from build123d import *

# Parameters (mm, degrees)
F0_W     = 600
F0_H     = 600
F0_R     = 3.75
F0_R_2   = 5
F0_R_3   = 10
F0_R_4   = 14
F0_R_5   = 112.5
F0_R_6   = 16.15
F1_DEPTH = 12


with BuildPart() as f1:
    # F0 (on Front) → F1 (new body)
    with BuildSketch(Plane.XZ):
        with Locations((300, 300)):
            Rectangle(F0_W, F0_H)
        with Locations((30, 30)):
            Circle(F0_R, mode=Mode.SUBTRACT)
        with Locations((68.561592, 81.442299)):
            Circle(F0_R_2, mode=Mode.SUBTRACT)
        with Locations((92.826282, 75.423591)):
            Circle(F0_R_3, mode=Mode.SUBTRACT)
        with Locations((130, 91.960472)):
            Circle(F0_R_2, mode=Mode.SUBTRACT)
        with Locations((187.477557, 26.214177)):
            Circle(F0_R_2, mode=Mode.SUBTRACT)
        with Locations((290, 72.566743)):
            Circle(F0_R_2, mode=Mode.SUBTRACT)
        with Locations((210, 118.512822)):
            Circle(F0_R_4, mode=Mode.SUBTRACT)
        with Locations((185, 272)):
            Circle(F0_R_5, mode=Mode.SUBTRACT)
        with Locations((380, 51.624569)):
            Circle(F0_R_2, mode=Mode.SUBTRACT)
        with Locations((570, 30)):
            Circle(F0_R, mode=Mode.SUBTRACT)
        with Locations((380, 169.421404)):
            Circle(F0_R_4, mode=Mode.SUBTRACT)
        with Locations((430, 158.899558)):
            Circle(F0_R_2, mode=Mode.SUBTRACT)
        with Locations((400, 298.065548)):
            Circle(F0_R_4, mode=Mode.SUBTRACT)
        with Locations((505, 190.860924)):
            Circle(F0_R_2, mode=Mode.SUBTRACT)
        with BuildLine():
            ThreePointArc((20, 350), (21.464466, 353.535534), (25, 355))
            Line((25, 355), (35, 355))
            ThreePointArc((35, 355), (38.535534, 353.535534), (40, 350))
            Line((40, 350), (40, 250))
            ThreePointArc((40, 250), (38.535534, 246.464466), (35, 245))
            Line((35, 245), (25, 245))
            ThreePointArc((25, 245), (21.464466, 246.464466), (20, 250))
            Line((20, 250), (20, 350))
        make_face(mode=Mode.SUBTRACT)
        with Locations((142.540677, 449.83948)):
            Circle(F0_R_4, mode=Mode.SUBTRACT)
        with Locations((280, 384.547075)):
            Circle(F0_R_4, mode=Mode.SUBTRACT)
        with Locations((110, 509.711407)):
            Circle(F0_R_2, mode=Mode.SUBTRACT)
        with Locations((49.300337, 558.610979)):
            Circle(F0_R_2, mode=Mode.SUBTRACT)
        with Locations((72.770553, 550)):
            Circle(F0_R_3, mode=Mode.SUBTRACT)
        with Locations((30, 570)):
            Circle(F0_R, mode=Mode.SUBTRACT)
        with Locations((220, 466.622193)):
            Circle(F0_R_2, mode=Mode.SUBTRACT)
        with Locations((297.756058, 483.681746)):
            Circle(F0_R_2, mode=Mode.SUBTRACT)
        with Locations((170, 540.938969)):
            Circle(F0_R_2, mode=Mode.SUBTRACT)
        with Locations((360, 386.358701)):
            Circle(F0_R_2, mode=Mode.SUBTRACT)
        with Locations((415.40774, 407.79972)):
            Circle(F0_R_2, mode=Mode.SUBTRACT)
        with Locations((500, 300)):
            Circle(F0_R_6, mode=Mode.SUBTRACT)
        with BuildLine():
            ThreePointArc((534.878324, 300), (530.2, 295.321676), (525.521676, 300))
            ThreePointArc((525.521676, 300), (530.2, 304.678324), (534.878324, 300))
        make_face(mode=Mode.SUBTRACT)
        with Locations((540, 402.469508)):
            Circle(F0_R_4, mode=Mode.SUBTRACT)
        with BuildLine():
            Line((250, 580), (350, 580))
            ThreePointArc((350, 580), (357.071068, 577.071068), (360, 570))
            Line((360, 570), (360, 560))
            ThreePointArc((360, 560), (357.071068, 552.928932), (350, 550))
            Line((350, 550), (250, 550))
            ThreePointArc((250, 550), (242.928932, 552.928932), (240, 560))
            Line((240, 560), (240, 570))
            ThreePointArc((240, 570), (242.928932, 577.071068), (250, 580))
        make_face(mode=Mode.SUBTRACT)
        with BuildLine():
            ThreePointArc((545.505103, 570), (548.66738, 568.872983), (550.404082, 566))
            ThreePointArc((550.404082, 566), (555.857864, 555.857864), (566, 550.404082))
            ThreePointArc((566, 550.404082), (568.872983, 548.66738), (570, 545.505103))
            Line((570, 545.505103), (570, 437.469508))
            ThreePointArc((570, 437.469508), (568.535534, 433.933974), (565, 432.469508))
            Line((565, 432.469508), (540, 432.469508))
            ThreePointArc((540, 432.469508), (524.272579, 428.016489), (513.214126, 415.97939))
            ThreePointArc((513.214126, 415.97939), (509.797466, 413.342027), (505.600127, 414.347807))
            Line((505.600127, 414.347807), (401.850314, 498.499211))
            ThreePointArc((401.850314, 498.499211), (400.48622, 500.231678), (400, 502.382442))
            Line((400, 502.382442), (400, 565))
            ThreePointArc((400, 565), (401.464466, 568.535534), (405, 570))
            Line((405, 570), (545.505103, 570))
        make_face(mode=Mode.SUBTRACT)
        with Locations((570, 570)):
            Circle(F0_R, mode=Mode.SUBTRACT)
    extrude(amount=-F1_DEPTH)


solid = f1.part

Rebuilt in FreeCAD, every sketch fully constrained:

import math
import FreeCAD as App
import Part
import Sketcher

V = App.Vector


def add_polygon(sketch, points):
    """Adds a closed chain of lines whose ends are joined by coincident constraints."""
    first, n = sketch.GeometryCount, len(points)
    for a, b in zip(points, points[1:] + points[:1]):
        sketch.addGeometry(Part.LineSegment(App.Vector(*a, 0), App.Vector(*b, 0)), False)
    for i in range(n):
        sketch.addConstraint(Sketcher.Constraint("Coincident", first + i, 2, first + (i + 1) % n, 1))

doc = App.newDocument("Part")
body = doc.addObject("PartDesign::Body", "Body")

# Sketch on XZ plane
sketch1 = body.newObject("Sketcher::SketchObject", "Sketch")
sketch1.AttachmentSupport = (doc.getObject("XZ_Plane"), [""])
sketch1.MapMode = "FlatFace"
add_polygon(sketch1, [(0, 600), (0, 0), (600, 0), (600, 600)])  # lines 0-3
sketch1.addGeometry(Part.Circle(V(30, 30, 0), V(0, 0, 1), 3.75), False)  # 4
sketch1.addGeometry(Part.Circle(V(68.561592, 81.442299, 0), V(0, 0, 1), 5), False)  # 5
sketch1.addGeometry(Part.Circle(V(92.826282, 75.423591, 0), V(0, 0, 1), 10), False)  # 6
sketch1.addGeometry(Part.Circle(V(130, 91.960472, 0), V(0, 0, 1), 5), False)  # 7
sketch1.addGeometry(Part.Circle(V(187.477557, 26.214177, 0), V(0, 0, 1), 5), False)  # 8
sketch1.addGeometry(Part.Circle(V(290, 72.566743, 0), V(0, 0, 1), 5), False)  # 9
sketch1.addGeometry(Part.Circle(V(210, 118.512822, 0), V(0, 0, 1), 14), False)  # 10
sketch1.addGeometry(Part.LineSegment(V(20, 250, 0), V(20, 350, 0)), False)  # 11
sketch1.addGeometry(Part.ArcOfCircle(Part.Circle(V(25, 350, 0), V(0, 0, 1), 5), math.radians(89.999996), math.radians(180.000004)), False)  # 12
sketch1.addGeometry(Part.LineSegment(V(25, 355, 0), V(35, 355, 0)), False)  # 13
sketch1.addGeometry(Part.ArcOfCircle(Part.Circle(V(35, 350, 0), V(0, 0, 1), 5), math.radians(-0.000004), math.radians(90.000004)), False)  # 14
sketch1.addGeometry(Part.LineSegment(V(40, 350, 0), V(40, 250, 0)), False)  # 15
sketch1.addGeometry(Part.ArcOfCircle(Part.Circle(V(35, 250, 0), V(0, 0, 1), 5), math.radians(-90.000004), math.radians(0.000004)), False)  # 16
sketch1.addGeometry(Part.LineSegment(V(35, 245, 0), V(25, 245, 0)), False)  # 17
sketch1.addGeometry(Part.ArcOfCircle(Part.Circle(V(25, 250, 0), V(0, 0, 1), 5), math.radians(179.999996), math.radians(270.000004)), False)  # 18
sketch1.addGeometry(Part.Circle(V(185, 272, 0), V(0, 0, 1), 112.5), False)  # 19
sketch1.addGeometry(Part.Circle(V(380, 51.624569, 0), V(0, 0, 1), 5), False)  # 20
sketch1.addGeometry(Part.Circle(V(430, 158.899558, 0), V(0, 0, 1), 5), False)  # 21
sketch1.addGeometry(Part.Circle(V(570, 30, 0), V(0, 0, 1), 3.75), False)  # 22
sketch1.addGeometry(Part.Circle(V(380, 169.421404, 0), V(0, 0, 1), 14), False)  # 23
sketch1.addGeometry(Part.Circle(V(400, 298.065548, 0), V(0, 0, 1), 14), False)  # 24
sketch1.addGeometry(Part.Circle(V(505, 190.860924, 0), V(0, 0, 1), 5), False)  # 25
sketch1.addGeometry(Part.Circle(V(500, 300, 0), V(0, 0, 1), 16.15), False)  # 26
sketch1.addGeometry(Part.Circle(V(530.2, 300, 0), V(0, 0, 1), 4.678324), False)  # 27
sketch1.addGeometry(Part.Circle(V(280, 384.547075, 0), V(0, 0, 1), 14), False)  # 28
sketch1.addGeometry(Part.Circle(V(142.540677, 449.83948, 0), V(0, 0, 1), 14), False)  # 29
sketch1.addGeometry(Part.Circle(V(110, 509.711407, 0), V(0, 0, 1), 5), False)  # 30
sketch1.addGeometry(Part.Circle(V(49.300337, 558.610979, 0), V(0, 0, 1), 5), False)  # 31
sketch1.addGeometry(Part.Circle(V(30, 570, 0), V(0, 0, 1), 3.75), False)  # 32
sketch1.addGeometry(Part.Circle(V(72.770553, 550, 0), V(0, 0, 1), 10), False)  # 33
sketch1.addGeometry(Part.Circle(V(220, 466.622193, 0), V(0, 0, 1), 5), False)  # 34
sketch1.addGeometry(Part.Circle(V(170, 540.938969, 0), V(0, 0, 1), 5), False)  # 35
sketch1.addGeometry(Part.Circle(V(360, 386.358701, 0), V(0, 0, 1), 5), False)  # 36
sketch1.addGeometry(Part.Circle(V(415.40774, 407.79972, 0), V(0, 0, 1), 5), False)  # 37
sketch1.addGeometry(Part.Circle(V(540, 402.469508, 0), V(0, 0, 1), 14), False)  # 38
sketch1.addGeometry(Part.Circle(V(297.756058, 483.681746, 0), V(0, 0, 1), 5), False)  # 39
sketch1.addGeometry(Part.ArcOfCircle(Part.Circle(V(249.999999, 570.000001, 0), V(0, 0, 1), 9.999999), math.radians(89.999996), math.radians(180.000004)), False)  # 40
sketch1.addGeometry(Part.LineSegment(V(250, 580, 0), V(350, 580, 0)), False)  # 41
sketch1.addGeometry(Part.ArcOfCircle(Part.Circle(V(350.000001, 570.000001, 0), V(0, 0, 1), 9.999999), math.radians(-0.000004), math.radians(90.000004)), False)  # 42
sketch1.addGeometry(Part.LineSegment(V(360, 570, 0), V(360, 560, 0)), False)  # 43
sketch1.addGeometry(Part.ArcOfCircle(Part.Circle(V(350.000001, 559.999999, 0), V(0, 0, 1), 9.999999), math.radians(-90.000004), math.radians(0.000004)), False)  # 44
sketch1.addGeometry(Part.LineSegment(V(350, 550, 0), V(250, 550, 0)), False)  # 45
sketch1.addGeometry(Part.ArcOfCircle(Part.Circle(V(249.999999, 559.999999, 0), V(0, 0, 1), 9.999999), math.radians(179.999996), math.radians(270.000004)), False)  # 46
sketch1.addGeometry(Part.LineSegment(V(240, 560, 0), V(240, 570, 0)), False)  # 47
sketch1.addGeometry(Part.LineSegment(V(405, 570, 0), V(545.505103, 570, 0)), False)  # 48
sketch1.addGeometry(Part.ArcOfCircle(Part.Circle(V(545.505101, 564.999999, 0), V(0, 0, 1), 5.000001), math.radians(11.536971), math.radians(89.999982)), False)  # 49
sketch1.addGeometry(Part.ArcOfCircle(Part.Circle(V(569.999998, 569.999998, 0), V(0, 0, 1), 19.999998), math.radians(-168.463046), math.radians(-101.536954)), False)  # 50
sketch1.addGeometry(Part.ArcOfCircle(Part.Circle(V(564.999999, 545.505101, 0), V(0, 0, 1), 5.000001), math.radians(0.000018), math.radians(78.463029)), False)  # 51
sketch1.addGeometry(Part.LineSegment(V(570, 545.505103, 0), V(570, 437.469508, 0)), False)  # 52
sketch1.addGeometry(Part.ArcOfCircle(Part.Circle(V(565, 437.469508, 0), V(0, 0, 1), 5), math.radians(-90.000004), math.radians(0.000004)), False)  # 53
sketch1.addGeometry(Part.LineSegment(V(565, 432.469508, 0), V(540, 432.469508, 0)), False)  # 54
sketch1.addGeometry(Part.ArcOfCircle(Part.Circle(V(539.999999, 402.469511, 0), V(0, 0, 1), 29.999997), math.radians(89.999998), math.radians(153.235184)), False)  # 55
sketch1.addGeometry(Part.ArcOfCircle(Part.Circle(V(508.749813, 418.231039, 0), V(0, 0, 1), 5.000001), math.radians(-129.045483), math.radians(-26.764833)), False)  # 56
sketch1.addGeometry(Part.LineSegment(V(505.600127, 414.347807, 0), V(401.850314, 498.499211, 0)), False)  # 57
sketch1.addGeometry(Part.ArcOfCircle(Part.Circle(V(405.000007, 502.382444, 0), V(0, 0, 1), 5.000007), math.radians(-179.999972), math.radians(-129.045525)), False)  # 58
sketch1.addGeometry(Part.LineSegment(V(400, 502.382442, 0), V(400, 565, 0)), False)  # 59
sketch1.addGeometry(Part.ArcOfCircle(Part.Circle(V(405, 565, 0), V(0, 0, 1), 5), math.radians(89.999996), math.radians(180.000004)), False)  # 60
sketch1.addGeometry(Part.Circle(V(570, 570, 0), V(0, 0, 1), 3.75), False)  # 61
sketch1.addConstraint([
    Sketcher.Constraint("Tangent", 11, 2, 12, 2),
    Sketcher.Constraint("Tangent", 12, 1, 13, 1),
    Sketcher.Constraint("Tangent", 13, 2, 14, 2),
    Sketcher.Constraint("Tangent", 14, 1, 15, 1),
    Sketcher.Constraint("Tangent", 15, 2, 16, 2),
    Sketcher.Constraint("Tangent", 16, 1, 17, 1),
    Sketcher.Constraint("Tangent", 17, 2, 18, 2),
    Sketcher.Constraint("Tangent", 18, 1, 11, 1),
    Sketcher.Constraint("Tangent", 40, 1, 41, 1),
    Sketcher.Constraint("Tangent", 41, 2, 42, 2),
    Sketcher.Constraint("Tangent", 42, 1, 43, 1),
    Sketcher.Constraint("Tangent", 43, 2, 44, 2),
    Sketcher.Constraint("Tangent", 44, 1, 45, 1),
    Sketcher.Constraint("Tangent", 45, 2, 46, 2),
    Sketcher.Constraint("Tangent", 46, 1, 47, 1),
    Sketcher.Constraint("Tangent", 47, 2, 40, 2),
    Sketcher.Constraint("Tangent", 48, 2, 49, 2),
    Sketcher.Constraint("Tangent", 49, 1, 50, 1),
    Sketcher.Constraint("Tangent", 50, 2, 51, 2),
    Sketcher.Constraint("Tangent", 51, 1, 52, 1),
    Sketcher.Constraint("Tangent", 52, 2, 53, 2),
    Sketcher.Constraint("Tangent", 53, 1, 54, 1),
    Sketcher.Constraint("Tangent", 54, 2, 55, 1),
    Sketcher.Constraint("Tangent", 55, 2, 56, 2),
    Sketcher.Constraint("Tangent", 56, 1, 57, 1),
    Sketcher.Constraint("Tangent", 57, 2, 58, 2),
    Sketcher.Constraint("Tangent", 58, 1, 59, 1),
    Sketcher.Constraint("Tangent", 59, 2, 60, 2),
    Sketcher.Constraint("Tangent", 60, 1, 48, 1),
    Sketcher.Constraint("Vertical", 0),
    Sketcher.Constraint("Horizontal", 1),
    Sketcher.Constraint("Vertical", 2),
    Sketcher.Constraint("Horizontal", 3),
    Sketcher.Constraint("Vertical", 11),
    Sketcher.Constraint("Horizontal", 13),
    Sketcher.Constraint("Vertical", 15),
    Sketcher.Constraint("Horizontal", 17),
    Sketcher.Constraint("Horizontal", 41),
    Sketcher.Constraint("Vertical", 43),
    Sketcher.Constraint("Horizontal", 45),
    Sketcher.Constraint("Vertical", 47),
    Sketcher.Constraint("Horizontal", 48),
    Sketcher.Constraint("Vertical", 52),
    Sketcher.Constraint("Horizontal", 54),
    Sketcher.Constraint("Vertical", 59),
    Sketcher.Constraint("Coincident", 0, 2, -1, 1),
    Sketcher.Constraint("Coincident", 55, 3, 38, 3),
    Sketcher.Constraint("Coincident", 61, 3, 50, 3),
    Sketcher.Constraint("Equal", 5, 7),
    Sketcher.Constraint("Equal", 7, 8),
    Sketcher.Constraint("Equal", 8, 9),
    Sketcher.Constraint("Equal", 9, 12),
    Sketcher.Constraint("Equal", 12, 14),
    Sketcher.Constraint("Equal", 14, 16),
    Sketcher.Constraint("Equal", 16, 18),
    Sketcher.Constraint("Equal", 18, 20),
    Sketcher.Constraint("Equal", 20, 21),
    Sketcher.Constraint("Equal", 4, 22),
    Sketcher.Constraint("Equal", 10, 23),
    Sketcher.Constraint("Equal", 23, 24),
    Sketcher.Constraint("Equal", 21, 25),
    Sketcher.Constraint("Equal", 24, 28),
    Sketcher.Constraint("Equal", 28, 29),
    Sketcher.Constraint("Equal", 25, 30),
    Sketcher.Constraint("Equal", 30, 31),
    Sketcher.Constraint("Equal", 22, 32),
    Sketcher.Constraint("Equal", 6, 33),
    Sketcher.Constraint("Equal", 31, 34),
    Sketcher.Constraint("Equal", 34, 35),
    Sketcher.Constraint("Equal", 35, 36),
    Sketcher.Constraint("Equal", 36, 37),
    Sketcher.Constraint("Equal", 29, 38),
    Sketcher.Constraint("Equal", 37, 39),
    Sketcher.Constraint("Equal", 33, 40),
    Sketcher.Constraint("Equal", 40, 42),
    Sketcher.Constraint("Equal", 42, 44),
    Sketcher.Constraint("Equal", 44, 46),
    Sketcher.Constraint("Equal", 39, 49),
    Sketcher.Constraint("Equal", 49, 51),
    Sketcher.Constraint("Equal", 51, 53),
    Sketcher.Constraint("Equal", 53, 56),
    Sketcher.Constraint("Equal", 56, 60),
    Sketcher.Constraint("Equal", 32, 61),
    Sketcher.Constraint("Horizontal", 4, 3, 22, 3),
    Sketcher.Constraint("Horizontal", 26, 3, 27, 3),
    Sketcher.Constraint("Horizontal", 32, 3, 40, 3),
    Sketcher.Constraint("Horizontal", 42, 3, 61, 3),
    Sketcher.Constraint("Horizontal", 33, 3, 44, 1),
    Sketcher.Constraint("Horizontal", 47, 2, 48, 2),
    Sketcher.Constraint("Vertical", 20, 3, 23, 3),
    Sketcher.Constraint("Vertical", 4, 3, 32, 3),
    Sketcher.Constraint("Vertical", 22, 3, 61, 3),
    Sketcher.Constraint("Vertical", 36, 3, 42, 1),
    Sketcher.Constraint("Vertical", 61, 3, 51, 1),
    Sketcher.Constraint("Vertical", 24, 3, 58, 1),
    Sketcher.Constraint("Equal", 3, 0),
    Sketcher.Constraint("Equal", 45, 11),
    Sketcher.Constraint("Equal", 17, 43),
    Sketcher.Constraint("Diameter", 5, 10.0),
    Sketcher.Constraint("Diameter", 6, 20.0),
    Sketcher.Constraint("Diameter", 10, 28.0),
    Sketcher.Constraint("Diameter", 19, 225.0),
    Sketcher.Constraint("Diameter", 4, 7.5),
    Sketcher.Constraint("Diameter", 26, 32.3),
    Sketcher.Constraint("DistanceX", 1, 1, 1, 2, 600.0),
    Sketcher.Constraint("DistanceX", 13, 1, 13, 2, 10.0),
    Sketcher.Constraint("DistanceX", 41, 1, 41, 2, 100.0),
    Sketcher.Constraint("DistanceX", 54, 2, 54, 1, 25.0),
    Sketcher.Constraint("DistanceX", -1, 1, 4, 3, 30.0),
    Sketcher.Constraint("DistanceY", -1, 1, 4, 3, 30.0),
    Sketcher.Constraint("DistanceX", -1, 1, 7, 3, 130.0),
    Sketcher.Constraint("DistanceX", -1, 1, 9, 3, 290.0),
    Sketcher.Constraint("DistanceX", -1, 1, 10, 3, 210.0),
    Sketcher.Constraint("DistanceX", -1, 1, 12, 3, 25.0),
    Sketcher.Constraint("DistanceY", -1, 1, 12, 3, 350.0),
    Sketcher.Constraint("DistanceX", -1, 1, 19, 3, 185.0),
    Sketcher.Constraint("DistanceY", -1, 1, 19, 3, 272.0),
    Sketcher.Constraint("DistanceX", -1, 1, 20, 3, 380.0),
    Sketcher.Constraint("DistanceX", -1, 1, 21, 3, 430.0),
    Sketcher.Constraint("DistanceX", -1, 1, 22, 3, 570.0),
    Sketcher.Constraint("DistanceX", -1, 1, 24, 3, 400.0),
    Sketcher.Constraint("DistanceX", -1, 1, 25, 3, 505.0),
    Sketcher.Constraint("DistanceX", -1, 1, 26, 3, 500.0),
    Sketcher.Constraint("DistanceY", -1, 1, 26, 3, 300.0),
    Sketcher.Constraint("DistanceX", -1, 1, 28, 3, 280.0),
    Sketcher.Constraint("DistanceX", -1, 1, 30, 3, 110.0),
    Sketcher.Constraint("DistanceY", -1, 1, 32, 3, 570.0),
    Sketcher.Constraint("DistanceX", -1, 1, 34, 3, 220.0),
    Sketcher.Constraint("DistanceX", -1, 1, 35, 3, 170.0),
    Sketcher.Constraint("DistanceX", -1, 1, 36, 3, 360.0),
    Sketcher.Constraint("DistanceY", -1, 1, 49, 1, 566.0),
    Sketcher.Constraint("DistanceX", -1, 1, 27, 3, 530.2),
    Sketcher.Constraint("Diameter", 27, 9.356648),
    Sketcher.Constraint("Radius", 55, 29.999997),
    Sketcher.Constraint("Radius", 58, 5.000007),
    Sketcher.Constraint("DistanceY", -1, 1, 5, 3, 81.442299),
    Sketcher.Constraint("DistanceY", -1, 1, 36, 3, 386.358701),
    Sketcher.Constraint("DistanceY", 52, 2, 52, 1, 108.035595),
    Sketcher.Constraint("DistanceY", 59, 1, 59, 2, 62.617558),
    Sketcher.Constraint("DistanceY", -1, 1, 6, 3, 75.423591),
    Sketcher.Constraint("DistanceY", -1, 1, 7, 3, 91.960472),
    Sketcher.Constraint("DistanceY", -1, 1, 10, 3, 118.512822),
    Sketcher.Constraint("DistanceY", -1, 1, 20, 3, 51.624569),
    Sketcher.Constraint("DistanceY", -1, 1, 21, 3, 158.899558),
    Sketcher.Constraint("DistanceY", -1, 1, 24, 3, 298.065548),
    Sketcher.Constraint("DistanceY", -1, 1, 29, 3, 449.83948),
    Sketcher.Constraint("DistanceY", -1, 1, 31, 3, 558.610979),
    Sketcher.Constraint("DistanceY", -1, 1, 35, 3, 540.938969),
    Sketcher.Constraint("DistanceX", -1, 1, 37, 3, 415.40774),
    Sketcher.Constraint("DistanceY", -1, 1, 37, 3, 407.79972),
    Sketcher.Constraint("DistanceX", -1, 1, 39, 3, 297.756058),
    Sketcher.Constraint("DistanceY", -1, 1, 56, 3, 418.231039),
    Sketcher.Constraint("DistanceX", -1, 1, 5, 3, 68.561592),
    Sketcher.Constraint("DistanceX", -1, 1, 6, 3, 92.826282),
    Sketcher.Constraint("DistanceX", -1, 1, 8, 3, 187.477557),
    Sketcher.Constraint("DistanceY", -1, 1, 8, 3, 26.214177),
    Sketcher.Constraint("DistanceY", -1, 1, 9, 3, 72.566743),
    Sketcher.Constraint("DistanceY", -1, 1, 23, 3, 169.421404),
    Sketcher.Constraint("DistanceY", -1, 1, 25, 3, 190.860924),
    Sketcher.Constraint("DistanceY", -1, 1, 28, 3, 384.547075),
    Sketcher.Constraint("DistanceX", -1, 1, 29, 3, 142.540677),
    Sketcher.Constraint("DistanceY", -1, 1, 30, 3, 509.711407),
    Sketcher.Constraint("DistanceX", -1, 1, 31, 3, 49.300337),
    Sketcher.Constraint("DistanceX", -1, 1, 33, 3, 72.770553),
    Sketcher.Constraint("DistanceY", -1, 1, 34, 3, 466.622193),
    Sketcher.Constraint("DistanceY", -1, 1, 39, 3, 483.681746),
])
pad1 = body.newObject("PartDesign::Pad", "Pad")
pad1.Profile = sketch1
pad1.Length = 12
pad1.Reversed = True

doc.recompute()
